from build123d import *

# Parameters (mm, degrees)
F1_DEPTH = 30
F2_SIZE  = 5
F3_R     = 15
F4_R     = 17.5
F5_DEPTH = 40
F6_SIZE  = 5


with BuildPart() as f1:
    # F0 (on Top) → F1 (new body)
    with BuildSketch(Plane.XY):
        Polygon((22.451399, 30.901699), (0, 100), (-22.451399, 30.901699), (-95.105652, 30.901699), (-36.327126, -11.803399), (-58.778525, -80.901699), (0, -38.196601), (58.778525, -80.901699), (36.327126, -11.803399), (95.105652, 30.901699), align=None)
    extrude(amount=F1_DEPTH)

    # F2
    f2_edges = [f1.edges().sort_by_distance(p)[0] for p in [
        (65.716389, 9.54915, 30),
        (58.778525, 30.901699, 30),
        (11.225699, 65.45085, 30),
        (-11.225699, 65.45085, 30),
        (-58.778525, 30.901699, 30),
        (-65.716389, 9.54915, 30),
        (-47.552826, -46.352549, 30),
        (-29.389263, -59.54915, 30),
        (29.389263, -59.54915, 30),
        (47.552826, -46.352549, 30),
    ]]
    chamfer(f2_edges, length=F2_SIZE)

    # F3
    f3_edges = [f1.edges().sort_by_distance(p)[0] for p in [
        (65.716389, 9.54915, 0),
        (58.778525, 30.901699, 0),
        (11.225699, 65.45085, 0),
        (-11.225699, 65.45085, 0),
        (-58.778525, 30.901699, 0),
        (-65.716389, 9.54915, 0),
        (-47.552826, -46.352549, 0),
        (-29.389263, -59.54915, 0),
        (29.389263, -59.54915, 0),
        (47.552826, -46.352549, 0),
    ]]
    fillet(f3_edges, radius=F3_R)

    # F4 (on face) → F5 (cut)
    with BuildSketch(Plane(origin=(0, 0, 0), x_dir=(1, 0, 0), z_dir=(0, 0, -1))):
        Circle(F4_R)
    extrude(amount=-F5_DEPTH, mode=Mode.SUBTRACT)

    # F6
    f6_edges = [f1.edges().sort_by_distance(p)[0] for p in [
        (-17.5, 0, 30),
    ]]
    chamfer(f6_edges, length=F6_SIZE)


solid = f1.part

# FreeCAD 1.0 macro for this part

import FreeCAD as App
import Part
import Sketcher

V = App.Vector
Q = App.Units.Quantity


def edges_at(feature, points):
    """Names of the edges that pass closest to the given points."""
    edges = feature.Shape.Edges
    near = lambda p: min(range(len(edges)), key=lambda i: edges[i].distToShape(Part.Vertex(*p))[0])
    return sorted({f"Edge{near(p) + 1}" for p in points})


def add_polygon(sketch, points):
    """Adds a closed chain of lines whose ends are joined by coincident constraints."""
    first, n = sketch.GeometryCount, len(points)
    for a, b in zip(points, points[1:] + points[:1]):
        sketch.addGeometry(Part.LineSegment(App.Vector(*a, 0), App.Vector(*b, 0)), False)
    for i in range(n):
        sketch.addConstraint(Sketcher.Constraint("Coincident", first + i, 2, first + (i + 1) % n, 1))

doc = App.newDocument("Part")
params = doc.addObject("Spreadsheet::Sheet", "Params")
for row, (alias, value) in enumerate([
    ("pad1_length", "30 mm"),
    ("chamfer_size", "5 mm"),
    ("fillet_radius", "15 mm"),
    ("sketch2_diameter", "35 mm"),
    ("pocket1_length", "40 mm"),
    ("chamfer2_size", "5 mm"),
], start=1):
    params.set(f"A{row}", alias)
    params.set(f"B{row}", "=" + value)
    params.setAlias(f"B{row}", alias)

body = doc.addObject("PartDesign::Body", "Body")

# Sketch on XY plane
sketch1 = doc.addObject("Sketcher::SketchObject", "Sketch")
body.addObject(sketch1)
sketch1.AttachmentSupport = (doc.XY_Plane, [""])
sketch1.MapMode = "FlatFace"
add_polygon(sketch1, [(22.451399, 30.901699), (0, 100), (-22.451399, 30.901699), (-95.105652, 30.901699), (-36.327126, -11.803399), (-58.778525, -80.901699), (0, -38.196601), (58.778525, -80.901699), (36.327126, -11.803399), (95.105652, 30.901699)])  # lines 0-9
sketch1.addConstraint([
    Sketcher.Constraint("Horizontal", 2),
    Sketcher.Constraint("Horizontal", 9),
    Sketcher.Constraint("Symmetric", 4, 2, 6, 2, -2),
    Sketcher.Constraint("Symmetric", 3, 2, 7, 2, -2),
    Sketcher.Constraint("Symmetric", 2, 2, 8, 2, -2),
    Sketcher.Constraint("PointOnObject", 0, 2, -2),
    Sketcher.Constraint("PointOnObject", 5, 2, -2),
    Sketcher.Constraint("Parallel", 1, 4),
    Sketcher.Constraint("Parallel", 3, 6),
    Sketcher.Constraint("Parallel", 0, 7),
    Sketcher.Constraint("Equal", 1, 3),
    Sketcher.Constraint("Equal", 3, 4),
    Sketcher.Constraint("Equal", 4, 5),
    Sketcher.Constraint("Angle", 0, Q("108 deg")),
    Sketcher.Constraint("Angle", 3, Q("-35.999999 deg")),
    Sketcher.Constraint("DistanceY", -1, 1, 0, 2, 100.0),
    Sketcher.Constraint("DistanceX", 1, 2, -1, 1, 22.451399),
])
pad1 = doc.addObject("PartDesign::Pad", "Pad")
body.addObject(pad1)
pad1.Profile = sketch1
pad1.setExpression("Length", "Params.pad1_length")
doc.recompute()

chamfer = doc.addObject("PartDesign::Chamfer", "Chamfer")
body.addObject(chamfer)
chamfer.Base = (pad1, edges_at(pad1, [
    (65.716, 9.549, 30),
    (58.779, 30.902, 30),
    (11.226, 65.451, 30),
    (-11.226, 65.451, 30),
    (-58.779, 30.902, 30),
    (-65.716, 9.549, 30),
    (-47.553, -46.353, 30),
    (-29.389, -59.549, 30),
    (29.389, -59.549, 30),
    (47.553, -46.353, 30),
]))
chamfer.setExpression("Size", "Params.chamfer_size")
doc.recompute()

fillet = doc.addObject("PartDesign::Fillet", "Fillet")
body.addObject(fillet)
fillet.Base = (chamfer, edges_at(chamfer, [
    (65.716, 9.549, 0),
    (58.779, 30.902, 0),
    (11.226, 65.451, 0),
    (-11.226, 65.451, 0),
    (-58.779, 30.902, 0),
    (-65.716, 9.549, 0),
    (-47.553, -46.353, 0),
    (-29.389, -59.549, 0),
    (29.389, -59.549, 0),
    (47.553, -46.353, 0),
]))
fillet.setExpression("Radius", "Params.fillet_radius")

# Sketch on XY plane
sketch2 = doc.addObject("Sketcher::SketchObject", "Sketch001")
body.addObject(sketch2)
sketch2.AttachmentSupport = (doc.XY_Plane, [""])
sketch2.MapMode = "FlatFace"
sketch2.addGeometry(Part.Circle(V(0, 0, 0), V(0, 0, 1), 17.5), False)
sketch2.addConstraint([
    Sketcher.Constraint("Coincident", 0, 3, -1, 1),
    Sketcher.Constraint("Diameter", 0, 35.0),
])
sketch2.setExpression("Constraints[1]", "Params.sketch2_diameter")
pocket1 = doc.addObject("PartDesign::Pocket", "Pocket")
body.addObject(pocket1)
pocket1.Profile = sketch2
pocket1.setExpression("Length", "Params.pocket1_length")
pocket1.Reversed = True
doc.recompute()

chamfer2 = doc.addObject("PartDesign::Chamfer", "Chamfer001")
body.addObject(chamfer2)
chamfer2.Base = (pocket1, edges_at(pocket1, [(-17.5, 0, 30)]))
chamfer2.setExpression("Size", "Params.chamfer2_size")

doc.recompute()
